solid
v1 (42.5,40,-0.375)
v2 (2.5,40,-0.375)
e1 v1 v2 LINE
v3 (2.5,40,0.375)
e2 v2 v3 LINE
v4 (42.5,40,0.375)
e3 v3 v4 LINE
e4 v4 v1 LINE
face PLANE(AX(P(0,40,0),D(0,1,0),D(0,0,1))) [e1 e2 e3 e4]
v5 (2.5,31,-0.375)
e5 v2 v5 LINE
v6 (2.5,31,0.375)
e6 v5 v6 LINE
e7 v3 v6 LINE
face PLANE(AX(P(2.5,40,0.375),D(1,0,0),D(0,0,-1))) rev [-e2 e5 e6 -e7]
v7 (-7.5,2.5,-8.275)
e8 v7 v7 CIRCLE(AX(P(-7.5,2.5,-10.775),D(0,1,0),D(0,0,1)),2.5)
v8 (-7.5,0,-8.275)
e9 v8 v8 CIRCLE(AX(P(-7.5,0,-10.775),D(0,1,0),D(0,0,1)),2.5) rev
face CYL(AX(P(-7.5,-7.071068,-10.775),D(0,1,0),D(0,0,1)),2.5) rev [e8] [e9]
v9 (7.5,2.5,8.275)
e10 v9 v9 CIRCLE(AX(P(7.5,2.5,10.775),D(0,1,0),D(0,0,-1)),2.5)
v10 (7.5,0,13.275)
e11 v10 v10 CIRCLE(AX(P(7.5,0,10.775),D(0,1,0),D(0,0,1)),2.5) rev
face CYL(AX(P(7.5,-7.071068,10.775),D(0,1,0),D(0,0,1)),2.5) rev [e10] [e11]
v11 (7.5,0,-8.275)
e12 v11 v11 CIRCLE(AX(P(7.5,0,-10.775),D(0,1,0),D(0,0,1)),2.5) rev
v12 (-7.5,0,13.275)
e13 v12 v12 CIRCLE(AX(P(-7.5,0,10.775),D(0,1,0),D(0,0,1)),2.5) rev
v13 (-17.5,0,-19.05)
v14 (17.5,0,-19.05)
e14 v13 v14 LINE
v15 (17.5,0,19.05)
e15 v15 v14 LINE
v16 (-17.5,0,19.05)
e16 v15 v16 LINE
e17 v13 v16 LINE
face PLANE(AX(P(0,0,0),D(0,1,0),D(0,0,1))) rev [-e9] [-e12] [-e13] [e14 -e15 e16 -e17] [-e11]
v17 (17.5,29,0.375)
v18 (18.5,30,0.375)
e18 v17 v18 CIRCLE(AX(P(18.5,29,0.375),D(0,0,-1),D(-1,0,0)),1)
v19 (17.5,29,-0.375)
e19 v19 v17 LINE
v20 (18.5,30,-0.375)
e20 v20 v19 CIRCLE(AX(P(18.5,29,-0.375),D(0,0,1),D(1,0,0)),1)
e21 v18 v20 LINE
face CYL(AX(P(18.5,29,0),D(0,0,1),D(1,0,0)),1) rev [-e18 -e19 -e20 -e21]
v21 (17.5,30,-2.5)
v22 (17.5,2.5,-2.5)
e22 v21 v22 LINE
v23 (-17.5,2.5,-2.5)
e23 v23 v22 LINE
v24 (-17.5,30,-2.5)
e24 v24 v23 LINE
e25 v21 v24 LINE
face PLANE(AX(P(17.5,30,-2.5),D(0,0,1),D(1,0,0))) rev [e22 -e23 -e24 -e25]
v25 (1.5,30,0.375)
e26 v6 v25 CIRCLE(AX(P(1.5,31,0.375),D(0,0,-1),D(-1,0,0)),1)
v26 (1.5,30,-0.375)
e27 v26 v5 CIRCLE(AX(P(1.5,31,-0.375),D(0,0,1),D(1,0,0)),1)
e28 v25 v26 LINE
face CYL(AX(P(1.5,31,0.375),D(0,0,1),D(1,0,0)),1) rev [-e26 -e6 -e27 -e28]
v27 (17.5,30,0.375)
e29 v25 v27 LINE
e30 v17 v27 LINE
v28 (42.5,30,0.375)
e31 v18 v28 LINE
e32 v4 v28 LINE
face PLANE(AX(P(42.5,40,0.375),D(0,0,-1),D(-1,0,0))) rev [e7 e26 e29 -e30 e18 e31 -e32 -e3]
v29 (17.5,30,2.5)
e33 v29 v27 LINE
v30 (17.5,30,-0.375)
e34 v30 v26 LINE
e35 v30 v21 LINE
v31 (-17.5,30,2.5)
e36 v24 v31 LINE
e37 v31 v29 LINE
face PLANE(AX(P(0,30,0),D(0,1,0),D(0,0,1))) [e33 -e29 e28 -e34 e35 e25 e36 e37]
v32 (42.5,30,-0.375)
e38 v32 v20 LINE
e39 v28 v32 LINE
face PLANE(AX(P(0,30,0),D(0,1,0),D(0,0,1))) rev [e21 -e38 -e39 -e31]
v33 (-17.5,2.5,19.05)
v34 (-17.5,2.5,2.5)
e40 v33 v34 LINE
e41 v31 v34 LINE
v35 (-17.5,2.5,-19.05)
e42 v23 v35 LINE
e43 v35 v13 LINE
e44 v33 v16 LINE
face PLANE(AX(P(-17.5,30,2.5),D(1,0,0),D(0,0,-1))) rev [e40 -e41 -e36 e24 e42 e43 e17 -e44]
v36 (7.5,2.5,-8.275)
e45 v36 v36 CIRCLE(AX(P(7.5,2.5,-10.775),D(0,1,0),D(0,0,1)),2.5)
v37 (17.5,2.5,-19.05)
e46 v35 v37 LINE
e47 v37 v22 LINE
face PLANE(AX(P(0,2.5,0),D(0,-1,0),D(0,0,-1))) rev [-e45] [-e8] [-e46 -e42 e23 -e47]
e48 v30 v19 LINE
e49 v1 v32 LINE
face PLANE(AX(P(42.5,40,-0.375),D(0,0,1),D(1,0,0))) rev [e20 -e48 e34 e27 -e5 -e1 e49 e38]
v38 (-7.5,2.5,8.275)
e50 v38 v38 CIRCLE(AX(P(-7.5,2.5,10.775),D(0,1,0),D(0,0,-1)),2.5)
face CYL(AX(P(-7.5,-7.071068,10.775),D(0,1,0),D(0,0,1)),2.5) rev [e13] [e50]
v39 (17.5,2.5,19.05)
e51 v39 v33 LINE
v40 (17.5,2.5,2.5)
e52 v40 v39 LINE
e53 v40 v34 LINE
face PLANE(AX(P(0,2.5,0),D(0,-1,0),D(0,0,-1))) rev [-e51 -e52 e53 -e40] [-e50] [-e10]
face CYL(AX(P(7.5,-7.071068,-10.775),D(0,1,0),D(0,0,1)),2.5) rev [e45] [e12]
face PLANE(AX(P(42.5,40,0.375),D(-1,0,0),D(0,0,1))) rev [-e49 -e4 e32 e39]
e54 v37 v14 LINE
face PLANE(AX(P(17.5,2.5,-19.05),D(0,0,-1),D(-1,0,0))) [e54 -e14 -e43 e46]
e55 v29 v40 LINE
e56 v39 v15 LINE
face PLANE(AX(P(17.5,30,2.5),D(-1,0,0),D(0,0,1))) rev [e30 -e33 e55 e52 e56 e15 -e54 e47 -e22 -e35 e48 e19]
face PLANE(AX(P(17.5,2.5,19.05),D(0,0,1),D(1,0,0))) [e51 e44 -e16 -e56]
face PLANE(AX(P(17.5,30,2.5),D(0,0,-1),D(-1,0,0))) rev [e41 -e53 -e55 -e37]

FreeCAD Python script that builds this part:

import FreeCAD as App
import Part
import Sketcher
from FreeCAD import Vector


def edges_at(feature, points):
    """Names of the edges that pass closest to the given points."""
    edges = feature.Shape.Edges
    near = lambda p: min(range(len(edges)), key=lambda i: edges[i].distToShape(Part.Vertex(*p))[0])
    return sorted({f"Edge{near(p) + 1}" for p in points})


def add_polygon(sketch, points):
    """Adds a closed chain of lines whose ends are joined by coincident constraints."""
    first, n = sketch.GeometryCount, len(points)
    for a, b in zip(points, points[1:] + points[:1]):
        sketch.addGeometry(Part.LineSegment(App.Vector(*a, 0), App.Vector(*b, 0)), False)
    for i in range(n):
        sketch.addConstraint(Sketcher.Constraint("Coincident", first + i, 2, first + (i + 1) % n, 1))

doc = App.newDocument("Part")
body = doc.addObject("PartDesign::Body", "Body")

# Sketch on XZ plane
sketch1 = doc.addObject("Sketcher::SketchObject", "Sketch")
body.addObject(sketch1)
sketch1.AttachmentSupport = (doc.XZ_Plane, [""])
sketch1.MapMode = "FlatFace"
add_polygon(sketch1, [(-17.5, -2.5), (-17.5, 2.5), (17.5, 2.5), (17.5, -2.5)])  # lines 0-3
sketch1.addConstraint(Sketcher.Constraint("Vertical", 0))
sketch1.addConstraint(Sketcher.Constraint("Horizontal", 1))
sketch1.addConstraint(Sketcher.Constraint("Vertical", 2))
sketch1.addConstraint(Sketcher.Constraint("Horizontal", 3))
sketch1.addConstraint(Sketcher.Constraint("Symmetric", 0, 2, 2, 2, -1, 1))
sketch1.addConstraint(Sketcher.Constraint("DistanceX", 1, 1, 1, 2, 35.0))
sketch1.addConstraint(Sketcher.Constraint("DistanceY", 0, 1, 0, 2, 5.0))
pad1 = doc.addObject("PartDesign::Pad", "Pad")
body.addObject(pad1)
pad1.Profile = sketch1
pad1.Length = 30
pad1.Reversed = True

# Sketch on XZ plane
sketch2 = doc.addObject("Sketcher::SketchObject", "Sketch001")
body.addObject(sketch2)
sketch2.AttachmentSupport = (doc.XZ_Plane, [""])
sketch2.MapMode = "FlatFace"
sketch2.AttachmentOffset = App.Placement(Vector(0, 0, -30), App.Rotation())
add_polygon(sketch2, [(2.5, -0.375), (2.5, 0.375), (42.5, 0.375), (42.5, -0.375)])  # lines 0-3
sketch2.addConstraint(Sketcher.Constraint("Vertical", 0))
sketch2.addConstraint(Sketcher.Constraint("Horizontal", 1))
sketch2.addConstraint(Sketcher.Constraint("Vertical", 2))
sketch2.addConstraint(Sketcher.Constraint("Horizontal", 3))
sketch2.addConstraint(Sketcher.Constraint("DistanceX", 1, 1, 1, 2, 40.0))
sketch2.addConstraint(Sketcher.Constraint("DistanceY", 0, 1, 0, 2, 0.75))
sketch2.addConstraint(Sketcher.Constraint("DistanceX", -1, 1, 0, 2, 2.5))
sketch2.addConstraint(Sketcher.Constraint("DistanceY", -1, 1, 0, 2, 0.375))
pad2 = doc.addObject("PartDesign::Pad", "Pad001")
body.addObject(pad2)
pad2.Profile = sketch2
pad2.Length = 10
pad2.Reversed = True
doc.recompute()

fillet = doc.addObject("PartDesign::Fillet", "Fillet")
body.addObject(fillet)
fillet.Base = (pad2, edges_at(pad2, [(17.5, 30, 0), (2.5, 30, 0)]))
fillet.Radius = 1

# Sketch on XZ plane
sketch3 = doc.addObject("Sketcher::SketchObject", "Sketch002")
body.addObject(sketch3)
sketch3.AttachmentSupport = (doc.XZ_Plane, [""])
sketch3.MapMode = "FlatFace"
add_polygon(sketch3, [(-17.5, 19.05), (-17.5, -19.05), (17.5, -19.05), (17.5, 19.05)])  # lines 0-3
sketch3.addConstraint(Sketcher.Constraint("Vertical", 0))
sketch3.addConstraint(Sketcher.Constraint("Horizontal", 1))
sketch3.addConstraint(Sketcher.Constraint("Vertical", 2))
sketch3.addConstraint(Sketcher.Constraint("Horizontal", 3))
sketch3.addConstraint(Sketcher.Constraint("Symmetric", 0, 2, 2, 2, -1, 1))
sketch3.addConstraint(Sketcher.Constraint("DistanceX", 1, 1, 1, 2, 35.0))
sketch3.addConstraint(Sketcher.Constraint("DistanceY", 0, 2, 0, 1, 38.1))
pad3 = doc.addObject("PartDesign::Pad", "Pad002")
body.addObject(pad3)
pad3.Profile = sketch3
pad3.Length = 2.5
pad3.Reversed = True

# Sketch on XZ plane
sketch4 = doc.addObject("Sketcher::SketchObject", "Sketch003")
body.addObject(sketch4)
sketch4.AttachmentSupport = (doc.XZ_Plane, [""])
sketch4.MapMode = "FlatFace"
sketch4.AttachmentOffset = App.Placement(Vector(0, 0, -2.5), App.Rotation())
sketch4.addGeometry(Part.Circle(Vector(-7.5, -10.775, 0), Vector(0, 0, 1), 2.5), False)
sketch4.addGeometry(Part.Circle(Vector(7.5, -10.775, 0), Vector(0, 0, 1), 2.5), False)
sketch4.addGeometry(Part.Circle(Vector(7.5, 10.775, 0), Vector(0, 0, 1), 2.5), False)
sketch4.addGeometry(Part.Circle(Vector(-7.5, 10.775, 0), Vector(0, 0, 1), 2.5), False)
sketch4.addConstraint(Sketcher.Constraint("Equal", 0, 1))
sketch4.addConstraint(Sketcher.Constraint("Equal", 1, 2))
sketch4.addConstraint(Sketcher.Constraint("Equal", 2, 3))
sketch4.addConstraint(Sketcher.Constraint("Symmetric", 0, 3, 2, 3, -1, 1))
sketch4.addConstraint(Sketcher.Constraint("Symmetric", 1, 3, 3, 3, -1, 1))
sketch4.addConstraint(Sketcher.Constraint("Symmetric", 0, 3, 1, 3, -2))
sketch4.addConstraint(Sketcher.Constraint("Diameter", 0, 5.0))
sketch4.addConstraint(Sketcher.Constraint("DistanceX", 0, 3, 1, 3, 15.0))
sketch4.addConstraint(Sketcher.Constraint("DistanceY", 1, 3, 2, 3, 21.55))
pocket1 = doc.addObject("PartDesign::Pocket", "Pocket")
body.addObject(pocket1)
pocket1.Profile = sketch4
pocket1.Length = 2.5
pocket1.Reversed = True

doc.recompute()
